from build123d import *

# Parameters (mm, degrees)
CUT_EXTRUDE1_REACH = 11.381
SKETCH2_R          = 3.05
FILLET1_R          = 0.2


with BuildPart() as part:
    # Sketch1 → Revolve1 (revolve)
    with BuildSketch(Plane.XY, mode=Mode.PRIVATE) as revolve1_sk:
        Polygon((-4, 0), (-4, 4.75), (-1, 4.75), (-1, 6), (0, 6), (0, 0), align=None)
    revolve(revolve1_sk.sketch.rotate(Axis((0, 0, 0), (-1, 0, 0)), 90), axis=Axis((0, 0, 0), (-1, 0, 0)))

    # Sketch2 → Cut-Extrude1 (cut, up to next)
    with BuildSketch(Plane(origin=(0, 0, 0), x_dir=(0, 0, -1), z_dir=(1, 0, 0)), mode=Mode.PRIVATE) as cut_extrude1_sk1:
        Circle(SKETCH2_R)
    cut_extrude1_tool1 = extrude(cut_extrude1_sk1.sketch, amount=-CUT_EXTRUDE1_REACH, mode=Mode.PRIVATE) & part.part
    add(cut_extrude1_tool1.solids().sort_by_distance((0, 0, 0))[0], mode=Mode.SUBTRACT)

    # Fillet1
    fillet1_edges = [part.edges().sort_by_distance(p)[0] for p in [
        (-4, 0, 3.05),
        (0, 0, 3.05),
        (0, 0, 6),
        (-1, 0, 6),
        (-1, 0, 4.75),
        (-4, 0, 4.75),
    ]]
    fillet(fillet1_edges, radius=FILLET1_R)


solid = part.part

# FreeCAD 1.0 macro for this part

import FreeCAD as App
import Part
import Sketcher

V = App.Vector


def edges_at(feature, points):
    """Names of the edges that pass closest to the given points."""
    edges = feature.Shape.Edges
    near = lambda p: min(range(len(edges)), key=lambda i: edges[i].distToShape(Part.Vertex(*p))[0])
    return sorted({f"Edge{near(p) + 1}" for p in points})

doc = App.newDocument("Part")
params = doc.addObject("Spreadsheet::Sheet", "Params")
for row, (alias, value) in enumerate([
    ("sketch1_width", "4 mm"),
    ("sketch1_width2", "1 mm"),
    ("sketch1_height", "6 mm"),
    ("sketch1_height2", "4.75 mm"),
    ("revolution_angle", "360 deg"),
    ("sketch2_diameter", "6.1 mm"),
    ("fillet_radius", "0.2 mm"),
], start=1):
    params.set(f"A{row}", alias)
    params.set(f"B{row}", "=" + value)
    params.setAlias(f"B{row}", alias)

body = doc.addObject("PartDesign::Body", "Body")

# Sketch on XY plane
sketch1 = body.newObject("Sketcher::SketchObject", "Sketch")
sketch1.AttachmentSupport = (doc.getObject("XY_Plane"), [""])
sketch1.MapMode = "FlatFace"
sketch1.addGeometry([
    Part.LineSegment(V(-4, 4.8, 0), V(-4, 0, 0)),  # 0
    Part.LineSegment(V(-4, 0, 0), V(0, 0, 0)),  # 1
    Part.LineSegment(V(0, 0, 0), V(0, 6, 0)),  # 2
    Part.LineSegment(V(0, 6, 0), V(-1, 6, 0)),  # 3
    Part.LineSegment(V(-1, 6, 0), V(-1, 4.8, 0)),  # 4
    Part.LineSegment(V(-1, 4.8, 0), V(-4, 4.8, 0)),  # 5
], False)
sketch1.addConstraint([
    Sketcher.Constraint("Coincident", 0, 2, 1, 1),
    Sketcher.Constraint("Coincident", 1, 2, 2, 1),
    Sketcher.Constraint("Coincident", 2, 2, 3, 1),
    Sketcher.Constraint("Coincident", 3, 2, 4, 1),
    Sketcher.Constraint("Coincident", 4, 2, 5, 1),
    Sketcher.Constraint("Coincident", 5, 2, 0, 1),
    Sketcher.Constraint("Vertical", 0),
    Sketcher.Constraint("Horizontal", 1),
    Sketcher.Constraint("Vertical", 2),
    Sketcher.Constraint("Horizontal", 3),
    Sketcher.Constraint("Vertical", 4),
    Sketcher.Constraint("Horizontal", 5),
    Sketcher.Constraint("Coincident", 1, 2, -1, 1),
    Sketcher.Constraint("DistanceX", 1, 1, 1, 2, 4.0),
    Sketcher.Constraint("DistanceX", 3, 2, 3, 1, 1.0),
    Sketcher.Constraint("DistanceY", 2, 1, 2, 2, 6.0),
    Sketcher.Constraint("DistanceY", 0, 2, 0, 1, 4.75),
])
sketch1.setExpression("Constraints[13]", "Params.sketch1_width")
sketch1.setExpression("Constraints[14]", "Params.sketch1_width2")
sketch1.setExpression("Constraints[15]", "Params.sketch1_height")
sketch1.setExpression("Constraints[16]", "Params.sketch1_height2")
revolution = body.newObject("PartDesign::Revolution", "Revolution")
revolution.Profile = sketch1
revolution.ReferenceAxis = (sketch1, ["H_Axis"])
revolution.setExpression("Angle", "Params.revolution_angle")

# Sketch on YZ plane
sketch2 = body.newObject("Sketcher::SketchObject", "Sketch001")
sketch2.AttachmentSupport = (doc.getObject("YZ_Plane"), [""])
sketch2.MapMode = "FlatFace"
sketch2.addGeometry(Part.Circle(V(0, 0, 0), V(0, 0, 1), 3), False)
sketch2.addConstraint([
    Sketcher.Constraint("Coincident", 0, 3, -1, 1),
    Sketcher.Constraint("Diameter", 0, 6.1),
])
sketch2.setExpression("Constraints[1]", "Params.sketch2_diameter")
pocket1 = body.newObject("PartDesign::Pocket", "Pocket")
pocket1.Profile = sketch2
pocket1.Type = "UpToFirst"
doc.recompute()

fillet = body.newObject("PartDesign::Fillet", "Fillet")
fillet.Base = (pocket1, edges_at(pocket1, [
    (-4, 0, 3.05),
    (0, 0, 3.05),
    (0, 0, 6),
    (-1, 0, 6),
    (-1, 0, 4.75),
    (-4, 0, 4.75),
]))
fillet.setExpression("Radius", "Params.fillet_radius")

doc.recompute()
